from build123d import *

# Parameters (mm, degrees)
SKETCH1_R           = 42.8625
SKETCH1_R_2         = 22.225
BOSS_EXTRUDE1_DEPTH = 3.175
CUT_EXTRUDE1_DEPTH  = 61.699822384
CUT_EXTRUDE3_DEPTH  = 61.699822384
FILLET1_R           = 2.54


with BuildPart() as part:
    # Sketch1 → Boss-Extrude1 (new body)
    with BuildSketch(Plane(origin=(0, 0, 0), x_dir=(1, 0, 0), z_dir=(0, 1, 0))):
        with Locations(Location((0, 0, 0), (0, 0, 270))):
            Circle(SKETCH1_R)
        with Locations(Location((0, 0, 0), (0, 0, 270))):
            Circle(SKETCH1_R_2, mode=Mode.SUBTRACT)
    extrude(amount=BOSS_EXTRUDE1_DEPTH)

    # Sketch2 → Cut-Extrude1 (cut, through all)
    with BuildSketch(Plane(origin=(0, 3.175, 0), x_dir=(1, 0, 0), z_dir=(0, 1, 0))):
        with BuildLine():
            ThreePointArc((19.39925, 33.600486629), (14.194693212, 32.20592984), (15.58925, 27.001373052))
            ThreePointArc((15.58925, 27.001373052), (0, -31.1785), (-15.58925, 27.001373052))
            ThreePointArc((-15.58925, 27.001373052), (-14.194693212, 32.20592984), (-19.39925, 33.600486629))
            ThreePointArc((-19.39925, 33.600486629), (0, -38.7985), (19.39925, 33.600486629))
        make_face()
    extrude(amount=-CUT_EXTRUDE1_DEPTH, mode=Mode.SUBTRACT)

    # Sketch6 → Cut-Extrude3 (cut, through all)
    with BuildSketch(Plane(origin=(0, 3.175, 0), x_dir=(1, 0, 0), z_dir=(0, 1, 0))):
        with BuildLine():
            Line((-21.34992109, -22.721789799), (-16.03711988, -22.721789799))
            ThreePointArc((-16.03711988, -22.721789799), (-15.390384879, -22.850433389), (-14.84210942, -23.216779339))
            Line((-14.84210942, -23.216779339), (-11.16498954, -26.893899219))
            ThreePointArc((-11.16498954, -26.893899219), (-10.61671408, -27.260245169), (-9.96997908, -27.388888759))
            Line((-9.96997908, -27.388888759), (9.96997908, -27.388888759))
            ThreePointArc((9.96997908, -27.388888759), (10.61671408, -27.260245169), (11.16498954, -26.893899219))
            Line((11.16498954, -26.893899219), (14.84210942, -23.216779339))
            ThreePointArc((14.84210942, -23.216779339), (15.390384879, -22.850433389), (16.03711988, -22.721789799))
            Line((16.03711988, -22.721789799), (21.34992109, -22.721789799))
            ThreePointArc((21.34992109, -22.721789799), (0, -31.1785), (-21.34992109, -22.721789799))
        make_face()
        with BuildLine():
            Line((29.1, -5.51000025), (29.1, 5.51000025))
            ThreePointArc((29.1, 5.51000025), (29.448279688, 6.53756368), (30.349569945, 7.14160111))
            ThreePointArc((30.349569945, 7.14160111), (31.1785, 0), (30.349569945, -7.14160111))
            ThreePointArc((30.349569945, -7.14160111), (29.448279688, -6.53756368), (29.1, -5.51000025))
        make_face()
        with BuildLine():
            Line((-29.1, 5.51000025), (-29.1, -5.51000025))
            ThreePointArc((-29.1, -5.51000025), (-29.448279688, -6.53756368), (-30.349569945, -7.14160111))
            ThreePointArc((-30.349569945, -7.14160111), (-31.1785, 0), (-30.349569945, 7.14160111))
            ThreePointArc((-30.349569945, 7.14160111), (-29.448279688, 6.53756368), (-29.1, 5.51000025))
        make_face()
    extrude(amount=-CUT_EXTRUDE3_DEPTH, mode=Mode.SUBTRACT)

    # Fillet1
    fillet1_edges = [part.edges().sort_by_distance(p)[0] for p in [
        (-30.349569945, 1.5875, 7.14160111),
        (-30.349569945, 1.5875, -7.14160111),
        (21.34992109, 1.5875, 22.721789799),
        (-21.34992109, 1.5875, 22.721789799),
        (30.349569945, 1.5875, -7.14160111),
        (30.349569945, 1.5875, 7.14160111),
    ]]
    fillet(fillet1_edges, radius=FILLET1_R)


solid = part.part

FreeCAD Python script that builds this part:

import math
import FreeCAD as App
import Part
import Sketcher

V = App.Vector
Q = App.Units.Quantity


def edges_at(feature, points):
    """Names of the edges that pass closest to the given points."""
    edges = feature.Shape.Edges
    near = lambda p: min(range(len(edges)), key=lambda i: edges[i].distToShape(Part.Vertex(*p))[0])
    return sorted({f"Edge{near(p) + 1}" for p in points})

doc = App.newDocument("Part")
params = doc.addObject("Spreadsheet::Sheet", "Params")
for row, (alias, value) in enumerate([
    ("sketch1_diameter", "1.75 in"),
    ("sketch1_diameter2", "3.375 in"),
    ("pad1_length", "0.125 in"),
    ("sketch2_radius", "0.15 in"),
    ("fillet_radius", "0.1 in"),
], start=1):
    params.set(f"A{row}", alias)
    params.set(f"B{row}", "=" + value)
    params.setAlias(f"B{row}", alias)

body = doc.addObject("PartDesign::Body", "Body")

# Sketch on XZ plane
sketch1 = doc.addObject("Sketcher::SketchObject", "Sketch")
body.addObject(sketch1)
sketch1.AttachmentSupport = (doc.XZ_Plane, [""])
sketch1.MapMode = "FlatFace"
sketch1.addGeometry([
    Part.Circle(V(0, 0, 0), V(0, 0, 1), 43),
    Part.Circle(V(0, 0, 0), V(0, 0, 1), 22),
], False)
sketch1.addConstraint([
    Sketcher.Constraint("Coincident", 0, 3, -1, 1),
    Sketcher.Constraint("Coincident", 1, 3, -1, 1),
    Sketcher.Constraint("Diameter", 1, Q("1.75 in")),
    Sketcher.Constraint("Diameter", 0, Q("3.375 in")),
])
sketch1.setExpression("Constraints[2]", "Params.sketch1_diameter")
sketch1.setExpression("Constraints[3]", "Params.sketch1_diameter2")
pad1 = doc.addObject("PartDesign::Pad", "Pad")
body.addObject(pad1)
pad1.Profile = sketch1
pad1.setExpression("Length", "Params.pad1_length")
pad1.Reversed = True

# Sketch on XZ plane
sketch2 = doc.addObject("Sketcher::SketchObject", "Sketch001")
body.addObject(sketch2)
sketch2.AttachmentSupport = (doc.XZ_Plane, [""])
sketch2.MapMode = "FlatFace"
sketch2.AttachmentOffset = App.Placement(V(0, 0, -0.125 * 25.4), App.Rotation())
sketch2.addGeometry([
    Part.ArcOfCircle(Part.Circle(V(17.5, -30.3, 0), V(0, 0, 1), 3.8), math.radians(120), math.radians(300)),
    Part.ArcOfCircle(Part.Circle(V(0, 0, 0), V(0, 0, 1), 31.2), math.radians(-60), math.radians(240)),
    Part.ArcOfCircle(Part.Circle(V(-17.5, -30.3, 0), V(0, 0, 1), 3.8), math.radians(-120), math.radians(60)),
    Part.ArcOfCircle(Part.Circle(V(0, 0, 0), V(0, 0, 1), 38.8), math.radians(-60), math.radians(240)),
], False)
sketch2.addConstraint([
    Sketcher.Constraint("Tangent", 0, 1, 1, 1),
    Sketcher.Constraint("Tangent", 1, 2, 2, 2),
    Sketcher.Constraint("Tangent", 2, 1, 3, 2),
    Sketcher.Constraint("Tangent", 3, 1, 0, 2),
    Sketcher.Constraint("Coincident", 1, 3, -1, 1),
    Sketcher.Constraint("Coincident", 3, 3, -1, 1),
    Sketcher.Constraint("Horizontal", 0, 3, 2, 3),
    Sketcher.Constraint("Radius", 0, Q("0.15 in")),
    Sketcher.Constraint("Radius", 1, Q("1.2275 in")),
    Sketcher.Constraint("DistanceX", 2, 1, 1, 2, Q("0.15 in")),
])
sketch2.setExpression("Constraints[7]", "Params.sketch2_radius")
pocket1 = doc.addObject("PartDesign::Pocket", "Pocket")
body.addObject(pocket1)
pocket1.Profile = sketch2
pocket1.Type = "ThroughAll"
pocket1.Reversed = True

# Sketch on XZ plane
sketch3 = doc.addObject("Sketcher::SketchObject", "Sketch002")
body.addObject(sketch3)
sketch3.AttachmentSupport = (doc.XZ_Plane, [""])
sketch3.MapMode = "FlatFace"
sketch3.AttachmentOffset = App.Placement(V(0, 0, -0.125 * 25.4), App.Rotation())
sketch3.addGeometry([
    Part.LineSegment(V(-16, 22.7, 0), V(-21.3, 22.7, 0)),  # 0
    Part.ArcOfCircle(Part.Circle(V(0, 0, 0), V(0, 0, 1), 31.2), math.radians(47), math.radians(133)),  # 1
    Part.LineSegment(V(21.3, 22.7, 0), V(16, 22.7, 0)),  # 2
    Part.ArcOfCircle(Part.Circle(V(16, 24.4, 0), V(0, 0, 1), 1.7), math.radians(-135), math.radians(-90)),  # 3
    Part.LineSegment(V(14.8, 23.2, 0), V(11.2, 26.9, 0)),  # 4
    Part.ArcOfCircle(Part.Circle(V(10, 25.7, 0), V(0, 0, 1), 1.7), math.radians(45), math.radians(90)),  # 5
    Part.LineSegment(V(10, 27.4, 0), V(-10, 27.4, 0)),  # 6
    Part.ArcOfCircle(Part.Circle(V(-10, 25.7, 0), V(0, 0, 1), 1.7), math.radians(90), math.radians(135)),  # 7
    Part.LineSegment(V(-11.2, 26.9, 0), V(-14.8, 23.2, 0)),  # 8
    Part.ArcOfCircle(Part.Circle(V(-16, 24.4, 0), V(0, 0, 1), 1.7), math.radians(-90), math.radians(-45)),  # 9
    Part.LineSegment(V(29.1, -5.5, 0), V(29.1, 5.5, 0)),  # 10
    Part.ArcOfCircle(Part.Circle(V(30.8, 5.5, 0), V(0, 0, 1), 1.7), math.radians(105), math.radians(180)),  # 11
    Part.ArcOfCircle(Part.Circle(V(0, 0, 0), V(0, 0, 1), 31.2), math.radians(-13), math.radians(13)),  # 12
    Part.ArcOfCircle(Part.Circle(V(30.8, -5.5, 0), V(0, 0, 1), 1.7), math.radians(-180), math.radians(-105)),  # 13
    Part.LineSegment(V(-29.1, 5.5, 0), V(-29.1, -5.5, 0)),  # 14
    Part.ArcOfCircle(Part.Circle(V(-30.8, -5.5, 0), V(0, 0, 1), 1.7), math.radians(-75), math.radians(0)),  # 15
    Part.ArcOfCircle(Part.Circle(V(0, 0, 0), V(0, 0, 1), 31.2), math.radians(167), math.radians(193)),  # 16
    Part.ArcOfCircle(Part.Circle(V(-30.8, 5.5, 0), V(0, 0, 1), 1.7), math.radians(0), math.radians(75)),  # 17
], False)
sketch3.addConstraint([
    Sketcher.Constraint("Coincident", 0, 2, 1, 2),
    Sketcher.Constraint("Coincident", 1, 1, 2, 1),
    Sketcher.Constraint("Tangent", 2, 2, 3, 2),
    Sketcher.Constraint("Tangent", 3, 1, 4, 1),
    Sketcher.Constraint("Tangent", 4, 2, 5, 1),
    Sketcher.Constraint("Tangent", 5, 2, 6, 1),
    Sketcher.Constraint("Tangent", 6, 2, 7, 1),
    Sketcher.Constraint("Tangent", 7, 2, 8, 1),
    Sketcher.Constraint("Tangent", 8, 2, 9, 2),
    Sketcher.Constraint("Tangent", 9, 1, 0, 1),
    Sketcher.Constraint("Tangent", 10, 2, 11, 2),
    Sketcher.Constraint("Coincident", 11, 1, 12, 2),
    Sketcher.Constraint("Coincident", 12, 1, 13, 2),
    Sketcher.Constraint("Tangent", 13, 1, 10, 1),
    Sketcher.Constraint("Tangent", 14, 2, 15, 2),
    Sketcher.Constraint("Coincident", 15, 1, 16, 2),
    Sketcher.Constraint("Coincident", 16, 1, 17, 2),
    Sketcher.Constraint("Tangent", 17, 1, 14, 1),
    Sketcher.Constraint("Horizontal", 0),
    Sketcher.Constraint("Horizontal", 2),
    Sketcher.Constraint("Horizontal", 6),
    Sketcher.Constraint("Vertical", 10),
    Sketcher.Constraint("Vertical", 14),
    Sketcher.Constraint("Coincident", 1, 3, -1, 1),
    Sketcher.Constraint("Coincident", 12, 3, -1, 1),
    Sketcher.Constraint("Coincident", 16, 3, -1, 1),
    Sketcher.Constraint("Equal", 3, 5),
    Sketcher.Constraint("Equal", 5, 7),
    Sketcher.Constraint("Equal", 7, 9),
    Sketcher.Constraint("Equal", 9, 11),
    Sketcher.Constraint("Equal", 1, 12),
    Sketcher.Constraint("Equal", 11, 13),
    Sketcher.Constraint("Equal", 13, 15),
    Sketcher.Constraint("Equal", 12, 16),
    Sketcher.Constraint("Equal", 15, 17),
    Sketcher.Constraint("Symmetric", 11, 3, 15, 3, -1, 1),
    Sketcher.Constraint("Symmetric", 3, 3, 9, 3, -2),
    Sketcher.Constraint("Perpendicular", 4, 8),
    Sketcher.Constraint("Horizontal", 13, 3, 15, 3),
    Sketcher.Constraint("Horizontal", 11, 3, 17, 3),
    Sketcher.Constraint("Horizontal", 4, 2, 7, 2),
    Sketcher.Constraint("Radius", 1, Q("1.2275 in")),
    Sketcher.Constraint("Radius", 3, 1.69),
    Sketcher.Constraint("DistanceX", 0, 2, 0, 1, 5.312801),
    Sketcher.Constraint("DistanceY", 10, 1, 10, 2, 11.020001),
    Sketcher.Constraint("DistanceX", 6, 2, 6, 1, 19.939958),
    Sketcher.Constraint("DistanceX", -1, 1, 11, 3, 30.79),
    Sketcher.Constraint("DistanceY", -1, 1, 4, 2, 26.893899),
])
pocket2 = doc.addObject("PartDesign::Pocket", "Pocket001")
body.addObject(pocket2)
pocket2.Profile = sketch3
pocket2.Type = "ThroughAll"
pocket2.Reversed = True
doc.recompute()

fillet = doc.addObject("PartDesign::Fillet", "Fillet")
body.addObject(fillet)
fillet.Base = (pocket2, edges_at(pocket2, [
    (-30.35, 1.587, 7.142),
    (-30.35, 1.587, -7.142),
    (21.35, 1.587, 22.722),
    (-21.35, 1.587, 22.722),
    (30.35, 1.587, -7.142),
    (30.35, 1.587, 7.142),
]))
fillet.setExpression("Radius", "Params.fillet_radius")

doc.recompute()
